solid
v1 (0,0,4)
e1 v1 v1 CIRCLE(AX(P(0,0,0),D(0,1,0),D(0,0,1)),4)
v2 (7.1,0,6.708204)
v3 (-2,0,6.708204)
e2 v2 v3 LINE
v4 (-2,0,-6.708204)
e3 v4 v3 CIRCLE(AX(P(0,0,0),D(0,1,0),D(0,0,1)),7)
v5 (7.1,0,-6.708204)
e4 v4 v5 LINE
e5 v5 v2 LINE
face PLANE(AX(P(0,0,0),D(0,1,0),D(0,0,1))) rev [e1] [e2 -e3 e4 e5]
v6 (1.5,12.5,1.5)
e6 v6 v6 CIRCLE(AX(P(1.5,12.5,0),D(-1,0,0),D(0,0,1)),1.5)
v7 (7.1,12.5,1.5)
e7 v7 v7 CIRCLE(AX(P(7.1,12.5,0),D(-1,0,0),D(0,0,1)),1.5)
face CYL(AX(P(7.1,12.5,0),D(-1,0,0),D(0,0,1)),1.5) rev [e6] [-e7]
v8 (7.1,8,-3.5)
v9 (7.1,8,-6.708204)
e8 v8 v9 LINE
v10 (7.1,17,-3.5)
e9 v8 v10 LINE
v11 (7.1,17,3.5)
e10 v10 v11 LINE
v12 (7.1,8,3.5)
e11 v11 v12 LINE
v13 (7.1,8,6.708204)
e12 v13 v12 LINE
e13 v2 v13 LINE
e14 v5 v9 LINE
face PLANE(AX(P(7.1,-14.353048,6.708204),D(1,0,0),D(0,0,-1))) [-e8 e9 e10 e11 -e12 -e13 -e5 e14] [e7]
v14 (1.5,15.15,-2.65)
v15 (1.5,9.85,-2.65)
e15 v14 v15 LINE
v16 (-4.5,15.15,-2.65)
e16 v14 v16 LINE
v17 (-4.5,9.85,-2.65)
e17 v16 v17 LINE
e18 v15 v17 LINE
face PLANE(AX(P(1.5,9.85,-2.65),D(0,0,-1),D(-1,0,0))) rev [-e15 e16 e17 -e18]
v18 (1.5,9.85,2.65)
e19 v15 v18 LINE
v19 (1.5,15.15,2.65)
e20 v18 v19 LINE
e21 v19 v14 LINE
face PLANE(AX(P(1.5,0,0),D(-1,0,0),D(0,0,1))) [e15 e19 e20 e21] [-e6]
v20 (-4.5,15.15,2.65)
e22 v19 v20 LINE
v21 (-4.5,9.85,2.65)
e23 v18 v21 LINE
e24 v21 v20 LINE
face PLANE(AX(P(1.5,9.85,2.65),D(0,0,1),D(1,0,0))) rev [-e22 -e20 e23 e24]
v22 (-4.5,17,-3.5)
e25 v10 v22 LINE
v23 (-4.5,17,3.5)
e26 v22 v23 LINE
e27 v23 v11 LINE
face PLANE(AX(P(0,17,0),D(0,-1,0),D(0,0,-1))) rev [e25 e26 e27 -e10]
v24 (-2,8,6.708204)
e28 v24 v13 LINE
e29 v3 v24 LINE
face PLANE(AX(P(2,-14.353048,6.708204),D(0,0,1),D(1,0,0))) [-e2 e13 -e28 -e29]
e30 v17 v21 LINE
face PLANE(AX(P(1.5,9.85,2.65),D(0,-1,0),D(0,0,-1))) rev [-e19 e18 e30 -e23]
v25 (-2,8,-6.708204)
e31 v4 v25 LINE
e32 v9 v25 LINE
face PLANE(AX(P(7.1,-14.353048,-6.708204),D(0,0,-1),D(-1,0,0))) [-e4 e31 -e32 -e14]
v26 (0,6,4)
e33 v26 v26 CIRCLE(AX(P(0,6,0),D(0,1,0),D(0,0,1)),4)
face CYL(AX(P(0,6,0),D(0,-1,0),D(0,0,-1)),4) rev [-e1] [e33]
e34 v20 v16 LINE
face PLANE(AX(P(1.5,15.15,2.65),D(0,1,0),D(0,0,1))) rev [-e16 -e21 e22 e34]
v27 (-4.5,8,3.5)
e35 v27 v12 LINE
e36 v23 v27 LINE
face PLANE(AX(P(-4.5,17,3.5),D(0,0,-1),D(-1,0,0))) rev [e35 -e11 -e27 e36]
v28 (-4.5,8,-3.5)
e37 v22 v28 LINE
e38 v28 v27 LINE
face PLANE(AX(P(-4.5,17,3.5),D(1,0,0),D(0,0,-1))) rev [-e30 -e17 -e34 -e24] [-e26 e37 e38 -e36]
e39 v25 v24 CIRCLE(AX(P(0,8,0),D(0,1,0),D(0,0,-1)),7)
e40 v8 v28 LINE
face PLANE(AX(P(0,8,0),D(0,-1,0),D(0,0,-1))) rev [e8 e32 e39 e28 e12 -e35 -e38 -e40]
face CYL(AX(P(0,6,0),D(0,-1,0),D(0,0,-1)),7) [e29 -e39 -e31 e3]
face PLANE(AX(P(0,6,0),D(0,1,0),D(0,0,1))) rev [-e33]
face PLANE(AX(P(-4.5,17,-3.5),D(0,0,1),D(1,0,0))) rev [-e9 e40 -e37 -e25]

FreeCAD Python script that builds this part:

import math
import FreeCAD as App
import Part
import Sketcher
Q = App.Units.Quantity

doc = App.newDocument("Part")
params = doc.addObject("Spreadsheet::Sheet", "Params")
for row, (alias, value) in enumerate([
    ("sketch1_diameter", "14 mm"),
    ("sketch1_diameter2", "8 mm"),
    ("pad1_length", "6 mm"),
    ("sketch2_diameter", "14 mm"),
    ("pad2_length", "10 mm"),
    ("sketch3_radius", "7 mm"),
    ("pocket1_length", "8 mm"),
    ("sketch4_width", "6.3 mm"),
    ("sketch4_height", "4.3 mm"),
    ("pocket2_length", "6 mm"),
    ("sketch5_radius", "7 mm"),
    ("sketch5_height", "8 mm"),
    ("pocket3_length", "8 mm"),
    ("sketch6_radius", "7 mm"),
    ("sketch6_width", "4 mm"),
    ("sketch6_height", "5 mm"),
    ("pad3_length", "8 mm"),
    ("sketch7_diameter", "14 mm"),
    ("pocket4_length", "8 mm"),
    ("sketch8_width", "9 mm"),
    ("sketch8_height", "7 mm"),
    ("pad4_length", "9 mm"),
    ("sketch9_width", "5.3 mm"),
    ("pocket5_length", "6 mm"),
    ("sketch10_radius", "7 mm"),
    ("sketch10_width", "5.1 mm"),
    ("pad5_length", "8 mm"),
    ("sketch11_width", "9 mm"),
    ("sketch11_height", "7 mm"),
    ("pad6_length", "2.6 mm"),
    ("sketch12_width", "4 mm"),
    ("sketch12_height", "5 mm"),
    ("sketch13_diameter", "3 mm"),
], start=1):
    params.set(f"A{row}", alias)
    params.set(f"B{row}", "=" + value)
    params.setAlias(f"B{row}", alias)

body = doc.addObject("PartDesign::Body", "Body")

# Sketch on XZ plane
sketch1 = body.newObject("Sketcher::SketchObject", "Sketch")
sketch1.AttachmentSupport = (doc.getObject("XZ_Plane"), [""])
sketch1.MapMode = "FlatFace"
sketch1.addGeometry(Part.Circle(App.Vector(0, 0, 0), App.Vector(0, 0, 1), 7), False)
sketch1.addGeometry(Part.Circle(App.Vector(0, 0, 0), App.Vector(0, 0, 1), 4), False)
sketch1.addConstraint(Sketcher.Constraint("Coincident", 0, 3, -1, 1))
sketch1.addConstraint(Sketcher.Constraint("Coincident", 1, 3, -1, 1))
sketch1.addConstraint(Sketcher.Constraint("Diameter", 0, Q("14 mm")))
sketch1.addConstraint(Sketcher.Constraint("Diameter", 1, Q("8 mm")))
sketch1.setExpression("Constraints[2]", "Params.sketch1_diameter")
sketch1.setExpression("Constraints[3]", "Params.sketch1_diameter2")
pad1 = body.newObject("PartDesign::Pad", "Pad")
pad1.Profile = sketch1
pad1.setExpression("Length", "Params.pad1_length")
pad1.Reversed = True

# Sketch on XZ plane
sketch2 = body.newObject("Sketcher::SketchObject", "Sketch001")
sketch2.AttachmentSupport = (doc.getObject("XZ_Plane"), [""])
sketch2.MapMode = "FlatFace"
sketch2.AttachmentOffset = App.Placement(App.Vector(0, 0, -6), App.Rotation())
sketch2.addGeometry(Part.Circle(App.Vector(0, 0, 0), App.Vector(0, 0, 1), 7), False)
sketch2.addConstraint(Sketcher.Constraint("Coincident", 0, 3, -1, 1))
sketch2.addConstraint(Sketcher.Constraint("Diameter", 0, Q("14 mm")))
sketch2.setExpression("Constraints[1]", "Params.sketch2_diameter")
pad2 = body.newObject("PartDesign::Pad", "Pad001")
pad2.Profile = sketch2
pad2.setExpression("Length", "Params.pad2_length")
pad2.Reversed = True

# Sketch on XZ plane
sketch3 = body.newObject("Sketcher::SketchObject", "Sketch002")
sketch3.AttachmentSupport = (doc.getObject("XZ_Plane"), [""])
sketch3.MapMode = "FlatFace"
sketch3.AttachmentOffset = App.Placement(App.Vector(0, 0, -16), App.Rotation())
sketch3.addGeometry(Part.LineSegment(App.Vector(0, 7, 0), App.Vector(0, -7, 0)), False)
sketch3.addGeometry(Part.ArcOfCircle(Part.Circle(App.Vector(0, 0, 0), App.Vector(0, 0, 1), 7), math.radians(90), math.radians(270)), False)
sketch3.addConstraint(Sketcher.Constraint("Coincident", 0, 1, 1, 1))
sketch3.addConstraint(Sketcher.Constraint("Coincident", 1, 2, 0, 2))
sketch3.addConstraint(Sketcher.Constraint("Vertical", 0))
sketch3.addConstraint(Sketcher.Constraint("Coincident", 1, 3, -1, 1))
sketch3.addConstraint(Sketcher.Constraint("PointOnObject", 0, 1, -2))
sketch3.addConstraint(Sketcher.Constraint("Radius", 1, Q("7 mm")))
sketch3.setExpression("Constraints[5]", "Params.sketch3_radius")
pocket1 = body.newObject("PartDesign::Pocket", "Pocket")
pocket1.Profile = sketch3
pocket1.setExpression("Length", "Params.pocket1_length")
pocket1.Reversed = True

# Sketch on YZ plane
sketch4 = body.newObject("Sketcher::SketchObject", "Sketch003")
sketch4.AttachmentSupport = (doc.getObject("YZ_Plane"), [""])
sketch4.MapMode = "FlatFace"
sketch4.addGeometry(Part.LineSegment(App.Vector(15.3, -2.15, 0), App.Vector(9, -2.15, 0)), False)
sketch4.addGeometry(Part.LineSegment(App.Vector(9, -2.15, 0), App.Vector(9, 2.15, 0)), False)
sketch4.addGeometry(Part.LineSegment(App.Vector(9, 2.15, 0), App.Vector(15.3, 2.15, 0)), False)
sketch4.addGeometry(Part.LineSegment(App.Vector(15.3, 2.15, 0), App.Vector(15.3, -2.15, 0)), False)
sketch4.addConstraint(Sketcher.Constraint("Coincident", 0, 2, 1, 1))
sketch4.addConstraint(Sketcher.Constraint("Coincident", 1, 2, 2, 1))
sketch4.addConstraint(Sketcher.Constraint("Coincident", 2, 2, 3, 1))
sketch4.addConstraint(Sketcher.Constraint("Coincident", 3, 2, 0, 1))
sketch4.addConstraint(Sketcher.Constraint("Horizontal", 0))
sketch4.addConstraint(Sketcher.Constraint("Vertical", 1))
sketch4.addConstraint(Sketcher.Constraint("Horizontal", 2))
sketch4.addConstraint(Sketcher.Constraint("Vertical", 3))
sketch4.addConstraint(Sketcher.Constraint("DistanceX", 0, 2, 0, 1, Q("6.3 mm")))
sketch4.addConstraint(Sketcher.Constraint("DistanceY", 1, 1, 1, 2, Q("4.3 mm")))
sketch4.addConstraint(Sketcher.Constraint("DistanceX", -1, 1, 0, 2, Q("9 mm")))
sketch4.addConstraint(Sketcher.Constraint("DistanceY", 0, 2, -1, 1, Q("2.15 mm")))
sketch4.setExpression("Constraints[8]", "Params.sketch4_width")
sketch4.setExpression("Constraints[9]", "Params.sketch4_height")
pocket2 = body.newObject("PartDesign::Pocket", "Pocket001")
pocket2.Profile = sketch4
pocket2.setExpression("Length", "Params.pocket2_length")
pocket2.Reversed = True

# Sketch on XZ plane
sketch5 = body.newObject("Sketcher::SketchObject", "Sketch004")
sketch5.AttachmentSupport = (doc.getObject("XZ_Plane"), [""])
sketch5.MapMode = "FlatFace"
sketch5.AttachmentOffset = App.Placement(App.Vector(0, 0, -16), App.Rotation())
sketch5.addGeometry(Part.LineSegment(App.Vector(-10.546, -10.546, 0), App.Vector(-10.546, 10.546, 0)), False)
sketch5.addGeometry(Part.LineSegment(App.Vector(-10.546, 10.546, 0), App.Vector(10.546, 10.546, 0)), False)
sketch5.addGeometry(Part.LineSegment(App.Vector(10.546, 10.546, 0), App.Vector(10.546, -10.546, 0)), False)
sketch5.addGeometry(Part.LineSegment(App.Vector(10.546, -10.546, 0), App.Vector(-10.546, -10.546, 0)), False)
sketch5.addGeometry(Part.LineSegment(App.Vector(0, 4, 0), App.Vector(0, -4, 0)), False)
sketch5.addGeometry(Part.LineSegment(App.Vector(0, -4, 0), App.Vector(5.744563, -4, 0)), False)
sketch5.addGeometry(Part.ArcOfCircle(Part.Circle(App.Vector(0, 0, 0), App.Vector(0, 0, 1), 7), math.radians(-34.849905), math.radians(34.849905)), False)
sketch5.addGeometry(Part.LineSegment(App.Vector(5.744563, 4, 0), App.Vector(0, 4, 0)), False)
sketch5.addConstraint(Sketcher.Constraint("Coincident", 0, 2, 1, 1))
sketch5.addConstraint(Sketcher.Constraint("Coincident", 1, 2, 2, 1))
sketch5.addConstraint(Sketcher.Constraint("Coincident", 2, 2, 3, 1))
sketch5.addConstraint(Sketcher.Constraint("Coincident", 3, 2, 0, 1))
sketch5.addConstraint(Sketcher.Constraint("Coincident", 4, 2, 5, 1))
sketch5.addConstraint(Sketcher.Constraint("Coincident", 5, 2, 6, 1))
sketch5.addConstraint(Sketcher.Constraint("Coincident", 6, 2, 7, 1))
sketch5.addConstraint(Sketcher.Constraint("Coincident", 7, 2, 4, 1))
sketch5.addConstraint(Sketcher.Constraint("Vertical", 0))
sketch5.addConstraint(Sketcher.Constraint("Horizontal", 1))
sketch5.addConstraint(Sketcher.Constraint("Vertical", 2))
sketch5.addConstraint(Sketcher.Constraint("Horizontal", 3))
sketch5.addConstraint(Sketcher.Constraint("Vertical", 4))
sketch5.addConstraint(Sketcher.Constraint("Horizontal", 5))
sketch5.addConstraint(Sketcher.Constraint("Horizontal", 7))
sketch5.addConstraint(Sketcher.Constraint("Coincident", 6, 3, -1, 1))
sketch5.addConstraint(Sketcher.Constraint("Symmetric", 0, 2, 2, 2, -1, 1))
sketch5.addConstraint(Sketcher.Constraint("Symmetric", 4, 2, 7, 2, -1, 1))
sketch5.addConstraint(Sketcher.Constraint("Equal", 3, 0))
sketch5.addConstraint(Sketcher.Constraint("Radius", 6, Q("7 mm")))
sketch5.addConstraint(Sketcher.Constraint("DistanceY", 4, 2, 4, 1, Q("8 mm")))
sketch5.addConstraint(Sketcher.Constraint("DistanceX", 1, 1, 1, 2, Q("21.092 mm")))
sketch5.setExpression("Constraints[19]", "Params.sketch5_radius")
sketch5.setExpression("Constraints[20]", "Params.sketch5_height")
pocket3 = body.newObject("PartDesign::Pocket", "Pocket002")
pocket3.Profile = sketch5
pocket3.setExpression("Length", "Params.pocket3_length")
pocket3.Reversed = True

# Sketch on XZ plane
sketch6 = body.newObject("Sketcher::SketchObject", "Sketch005")
sketch6.AttachmentSupport = (doc.getObject("XZ_Plane"), [""])
sketch6.MapMode = "FlatFace"
sketch6.AttachmentOffset = App.Placement(App.Vector(0, 0, -8), App.Rotation())
sketch6.addGeometry(Part.LineSegment(App.Vector(2, -6.708204, 0), App.Vector(2, -11.708204, 0)), False)
sketch6.addGeometry(Part.LineSegment(App.Vector(2, -11.708204, 0), App.Vector(-2, -11.708204, 0)), False)
sketch6.addGeometry(Part.LineSegment(App.Vector(-2, -11.708204, 0), App.Vector(-2, -6.708204, 0)), False)
sketch6.addGeometry(Part.ArcOfCircle(Part.Circle(App.Vector(0, 0, 0), App.Vector(0, 0, 1), 7), math.radians(-106.60155), math.radians(-73.39845)), False)
sketch6.addGeometry(Part.LineSegment(App.Vector(2, 11.708204, 0), App.Vector(2, 6.708204, 0)), False)
sketch6.addGeometry(Part.ArcOfCircle(Part.Circle(App.Vector(0, 0, 0), App.Vector(0, 0, 1), 7), math.radians(73.39845), math.radians(106.60155)), False)
sketch6.addGeometry(Part.LineSegment(App.Vector(-2, 6.708204, 0), App.Vector(-2, 11.708204, 0)), False)
sketch6.addGeometry(Part.LineSegment(App.Vector(-2, 11.708204, 0), App.Vector(2, 11.708204, 0)), False)
sketch6.addConstraint(Sketcher.Constraint("Coincident", 0, 2, 1, 1))
sketch6.addConstraint(Sketcher.Constraint("Coincident", 1, 2, 2, 1))
sketch6.addConstraint(Sketcher.Constraint("Coincident", 2, 2, 3, 1))
sketch6.addConstraint(Sketcher.Constraint("Coincident", 3, 2, 0, 1))
sketch6.addConstraint(Sketcher.Constraint("Coincident", 4, 2, 5, 1))
sketch6.addConstraint(Sketcher.Constraint("Coincident", 5, 2, 6, 1))
sketch6.addConstraint(Sketcher.Constraint("Coincident", 6, 2, 7, 1))
sketch6.addConstraint(Sketcher.Constraint("Coincident", 7, 2, 4, 1))
sketch6.addConstraint(Sketcher.Constraint("Vertical", 0))
sketch6.addConstraint(Sketcher.Constraint("Horizontal", 1))
sketch6.addConstraint(Sketcher.Constraint("Vertical", 2))
sketch6.addConstraint(Sketcher.Constraint("Vertical", 4))
sketch6.addConstraint(Sketcher.Constraint("Vertical", 6))
sketch6.addConstraint(Sketcher.Constraint("Horizontal", 7))
sketch6.addConstraint(Sketcher.Constraint("Coincident", 3, 3, -1, 1))
sketch6.addConstraint(Sketcher.Constraint("Coincident", 5, 3, -1, 1))
sketch6.addConstraint(Sketcher.Constraint("Equal", 3, 5))
sketch6.addConstraint(Sketcher.Constraint("Symmetric", 0, 2, 6, 2, -1, 1))
sketch6.addConstraint(Sketcher.Constraint("Horizontal", 2, 2, 3, 2))
sketch6.addConstraint(Sketcher.Constraint("Horizontal", 4, 2, 5, 2))
sketch6.addConstraint(Sketcher.Constraint("Radius", 3, Q("7 mm")))
sketch6.addConstraint(Sketcher.Constraint("DistanceX", 1, 2, 1, 1, Q("4 mm")))
sketch6.addConstraint(Sketcher.Constraint("DistanceY", 0, 2, 0, 1, Q("5 mm")))
sketch6.setExpression("Constraints[20]", "Params.sketch6_radius")
sketch6.setExpression("Constraints[21]", "Params.sketch6_width")
sketch6.setExpression("Constraints[22]", "Params.sketch6_height")
pad3 = body.newObject("PartDesign::Pad", "Pad002")
pad3.Profile = sketch6
pad3.setExpression("Length", "Params.pad3_length")

# Sketch on XZ plane
sketch7 = body.newObject("Sketcher::SketchObject", "Sketch006")
sketch7.AttachmentSupport = (doc.getObject("XZ_Plane"), [""])
sketch7.MapMode = "FlatFace"
sketch7.AttachmentOffset = App.Placement(App.Vector(0, 0, -16), App.Rotation())
sketch7.addGeometry(Part.Circle(App.Vector(0, 0, 0), App.Vector(0, 0, 1), 7), False)
sketch7.addConstraint(Sketcher.Constraint("Coincident", 0, 3, -1, 1))
sketch7.addConstraint(Sketcher.Constraint("Diameter", 0, Q("14 mm")))
sketch7.setExpression("Constraints[1]", "Params.sketch7_diameter")
pocket4 = body.newObject("PartDesign::Pocket", "Pocket003")
pocket4.Profile = sketch7
pocket4.setExpression("Length", "Params.pocket4_length")
pocket4.Reversed = True

# Sketch on XZ plane
sketch8 = body.newObject("Sketcher::SketchObject", "Sketch007")
sketch8.AttachmentSupport = (doc.getObject("XZ_Plane"), [""])
sketch8.MapMode = "FlatFace"
sketch8.AttachmentOffset = App.Placement(App.Vector(0, 0, -8), App.Rotation())
sketch8.addGeometry(Part.LineSegment(App.Vector(-4.5, -3.5, 0), App.Vector(-4.5, 3.5, 0)), False)
sketch8.addGeometry(Part.LineSegment(App.Vector(-4.5, 3.5, 0), App.Vector(4.5, 3.5, 0)), False)
sketch8.addGeometry(Part.LineSegment(App.Vector(4.5, 3.5, 0), App.Vector(4.5, -3.5, 0)), False)
sketch8.addGeometry(Part.LineSegment(App.Vector(4.5, -3.5, 0), App.Vector(-4.5, -3.5, 0)), False)
sketch8.addConstraint(Sketcher.Constraint("Coincident", 0, 2, 1, 1))
sketch8.addConstraint(Sketcher.Constraint("Coincident", 1, 2, 2, 1))
sketch8.addConstraint(Sketcher.Constraint("Coincident", 2, 2, 3, 1))
sketch8.addConstraint(Sketcher.Constraint("Coincident", 3, 2, 0, 1))
sketch8.addConstraint(Sketcher.Constraint("Vertical", 0))
sketch8.addConstraint(Sketcher.Constraint("Horizontal", 1))
sketch8.addConstraint(Sketcher.Constraint("Vertical", 2))
sketch8.addConstraint(Sketcher.Constraint("Horizontal", 3))
sketch8.addConstraint(Sketcher.Constraint("Symmetric", 0, 2, 2, 2, -1, 1))
sketch8.addConstraint(Sketcher.Constraint("DistanceX", 1, 1, 1, 2, Q("9 mm")))
sketch8.addConstraint(Sketcher.Constraint("DistanceY", 0, 1, 0, 2, Q("7 mm")))
sketch8.setExpression("Constraints[9]", "Params.sketch8_width")
sketch8.setExpression("Constraints[10]", "Params.sketch8_height")
pad4 = body.newObject("PartDesign::Pad", "Pad003")
pad4.Profile = sketch8
pad4.setExpression("Length", "Params.pad4_length")
pad4.Reversed = True

# Sketch on YZ plane
sketch9 = body.newObject("Sketcher::SketchObject", "Sketch008")
sketch9.AttachmentSupport = (doc.getObject("YZ_Plane"), [""])
sketch9.MapMode = "FlatFace"
sketch9.AttachmentOffset = App.Placement(App.Vector(0, 0, -4.5), App.Rotation())
sketch9.addGeometry(Part.LineSegment(App.Vector(15.15, -2.65, 0), App.Vector(9.85, -2.65, 0)), False)
sketch9.addGeometry(Part.LineSegment(App.Vector(9.85, -2.65, 0), App.Vector(9.85, 2.65, 0)), False)
sketch9.addGeometry(Part.LineSegment(App.Vector(9.85, 2.65, 0), App.Vector(15.15, 2.65, 0)), False)
sketch9.addGeometry(Part.LineSegment(App.Vector(15.15, 2.65, 0), App.Vector(15.15, -2.65, 0)), False)
sketch9.addConstraint(Sketcher.Constraint("Coincident", 0, 2, 1, 1))
sketch9.addConstraint(Sketcher.Constraint("Coincident", 1, 2, 2, 1))
sketch9.addConstraint(Sketcher.Constraint("Coincident", 2, 2, 3, 1))
sketch9.addConstraint(Sketcher.Constraint("Coincident", 3, 2, 0, 1))
sketch9.addConstraint(Sketcher.Constraint("Horizontal", 0))
sketch9.addConstraint(Sketcher.Constraint("Vertical", 1))
sketch9.addConstraint(Sketcher.Constraint("Horizontal", 2))
sketch9.addConstraint(Sketcher.Constraint("Vertical", 3))
sketch9.addConstraint(Sketcher.Constraint("Equal", 2, 1))
sketch9.addConstraint(Sketcher.Constraint("DistanceX", 0, 2, 0, 1, Q("5.3 mm")))
sketch9.addConstraint(Sketcher.Constraint("DistanceX", -1, 1, 0, 2, Q("9.85 mm")))
sketch9.addConstraint(Sketcher.Constraint("DistanceY", 0, 2, -1, 1, Q("2.65 mm")))
sketch9.setExpression("Constraints[9]", "Params.sketch9_width")
pocket5 = body.newObject("PartDesign::Pocket", "Pocket004")
pocket5.Profile = sketch9
pocket5.setExpression("Length", "Params.pocket5_length")
pocket5.Reversed = True

# Sketch on XZ plane
sketch10 = body.newObject("Sketcher::SketchObject", "Sketch009")
sketch10.AttachmentSupport = (doc.getObject("XZ_Plane"), [""])
sketch10.MapMode = "FlatFace"
sketch10.AttachmentOffset = App.Placement(App.Vector(0, 0, -8), App.Rotation())
sketch10.addGeometry(Part.LineSegment(App.Vector(2, 6.708204, 0), App.Vector(7.1, 6.708204, 0)), False)
sketch10.addGeometry(Part.LineSegment(App.Vector(7.1, 6.708204, 0), App.Vector(7.1, -6.708204, 0)), False)
sketch10.addGeometry(Part.LineSegment(App.Vector(7.1, -6.708204, 0), App.Vector(2, -6.708204, 0)), False)
sketch10.addGeometry(Part.ArcOfCircle(Part.Circle(App.Vector(0, 0, 0), App.Vector(0, 0, 1), 7), math.radians(-73.39845), math.radians(73.39845)), False)
sketch10.addConstraint(Sketcher.Constraint("Coincident", 0, 2, 1, 1))
sketch10.addConstraint(Sketcher.Constraint("Coincident", 1, 2, 2, 1))
sketch10.addConstraint(Sketcher.Constraint("Coincident", 2, 2, 3, 1))
sketch10.addConstraint(Sketcher.Constraint("Coincident", 3, 2, 0, 1))
sketch10.addConstraint(Sketcher.Constraint("Horizontal", 0))
sketch10.addConstraint(Sketcher.Constraint("Vertical", 1))
sketch10.addConstraint(Sketcher.Constraint("Horizontal", 2))
sketch10.addConstraint(Sketcher.Constraint("Coincident", 3, 3, -1, 1))
sketch10.addConstraint(Sketcher.Constraint("Vertical", 2, 2, 3, 2))
sketch10.addConstraint(Sketcher.Constraint("Radius", 3, Q("7 mm")))
sketch10.addConstraint(Sketcher.Constraint("DistanceX", 0, 1, 0, 2, Q("5.1 mm")))
sketch10.addConstraint(Sketcher.Constraint("DistanceX", -1, 1, 2, 2, Q("2 mm")))
sketch10.setExpression("Constraints[9]", "Params.sketch10_radius")
sketch10.setExpression("Constraints[10]", "Params.sketch10_width")
pad5 = body.newObject("PartDesign::Pad", "Pad004")
pad5.Profile = sketch10
pad5.setExpression("Length", "Params.pad5_length")

# Sketch on YZ plane
sketch11 = body.newObject("Sketcher::SketchObject", "Sketch010")
sketch11.AttachmentSupport = (doc.getObject("YZ_Plane"), [""])
sketch11.MapMode = "FlatFace"
sketch11.AttachmentOffset = App.Placement(App.Vector(0, 0, 4.5), App.Rotation())
sketch11.addGeometry(Part.LineSegment(App.Vector(17, 3.5, 0), App.Vector(8, 3.5, 0)), False)
sketch11.addGeometry(Part.LineSegment(App.Vector(8, 3.5, 0), App.Vector(8, -3.5, 0)), False)
sketch11.addGeometry(Part.LineSegment(App.Vector(8, -3.5, 0), App.Vector(17, -3.5, 0)), False)
sketch11.addGeometry(Part.LineSegment(App.Vector(17, -3.5, 0), App.Vector(17, 3.5, 0)), False)
sketch11.addConstraint(Sketcher.Constraint("Coincident", 0, 2, 1, 1))
sketch11.addConstraint(Sketcher.Constraint("Coincident", 1, 2, 2, 1))
sketch11.addConstraint(Sketcher.Constraint("Coincident", 2, 2, 3, 1))
sketch11.addConstraint(Sketcher.Constraint("Coincident", 3, 2, 0, 1))
sketch11.addConstraint(Sketcher.Constraint("Horizontal", 0))
sketch11.addConstraint(Sketcher.Constraint("Vertical", 1))
sketch11.addConstraint(Sketcher.Constraint("Horizontal", 2))
sketch11.addConstraint(Sketcher.Constraint("Vertical", 3))
sketch11.addConstraint(Sketcher.Constraint("DistanceX", 0, 2, 0, 1, Q("9 mm")))
sketch11.addConstraint(Sketcher.Constraint("DistanceY", 1, 2, 1, 1, Q("7 mm")))
sketch11.addConstraint(Sketcher.Constraint("DistanceX", -1, 1, 0, 2, Q("8 mm")))
sketch11.addConstraint(Sketcher.Constraint("DistanceY", -1, 1, 0, 2, Q("3.5 mm")))
sketch11.setExpression("Constraints[8]", "Params.sketch11_width")
sketch11.setExpression("Constraints[9]", "Params.sketch11_height")
pad6 = body.newObject("PartDesign::Pad", "Pad005")
pad6.Profile = sketch11
pad6.setExpression("Length", "Params.pad6_length")

# Sketch on XZ plane
sketch12 = body.newObject("Sketcher::SketchObject", "Sketch011")
sketch12.AttachmentSupport = (doc.getObject("XZ_Plane"), [""])
sketch12.MapMode = "FlatFace"
sketch12.AttachmentOffset = App.Placement(App.Vector(0, 0, -8), App.Rotation())
sketch12.addGeometry(Part.LineSegment(App.Vector(-2, -11.708204, 0), App.Vector(-2, -6.708204, 0)), False)
sketch12.addGeometry(Part.LineSegment(App.Vector(-2, -6.708204, 0), App.Vector(2, -6.708204, 0)), False)
sketch12.addGeometry(Part.LineSegment(App.Vector(2, -6.708204, 0), App.Vector(2, -11.708204, 0)), False)
sketch12.addGeometry(Part.LineSegment(App.Vector(2, -11.708204, 0), App.Vector(-2, -11.708204, 0)), False)
sketch12.addGeometry(Part.LineSegment(App.Vector(-2, 6.708204, 0), App.Vector(-2, 11.708204, 0)), False)
sketch12.addGeometry(Part.LineSegment(App.Vector(-2, 11.708204, 0), App.Vector(2, 11.708204, 0)), False)
sketch12.addGeometry(Part.LineSegment(App.Vector(2, 11.708204, 0), App.Vector(2, 6.708204, 0)), False)
sketch12.addGeometry(Part.LineSegment(App.Vector(2, 6.708204, 0), App.Vector(-2, 6.708204, 0)), False)
sketch12.addConstraint(Sketcher.Constraint("Coincident", 0, 2, 1, 1))
sketch12.addConstraint(Sketcher.Constraint("Coincident", 1, 2, 2, 1))
sketch12.addConstraint(Sketcher.Constraint("Coincident", 2, 2, 3, 1))
sketch12.addConstraint(Sketcher.Constraint("Coincident", 3, 2, 0, 1))
sketch12.addConstraint(Sketcher.Constraint("Coincident", 4, 2, 5, 1))
sketch12.addConstraint(Sketcher.Constraint("Coincident", 5, 2, 6, 1))
sketch12.addConstraint(Sketcher.Constraint("Coincident", 6, 2, 7, 1))
sketch12.addConstraint(Sketcher.Constraint("Coincident", 7, 2, 4, 1))
sketch12.addConstraint(Sketcher.Constraint("Vertical", 0))
sketch12.addConstraint(Sketcher.Constraint("Horizontal", 1))
sketch12.addConstraint(Sketcher.Constraint("Vertical", 2))
sketch12.addConstraint(Sketcher.Constraint("Horizontal", 3))
sketch12.addConstraint(Sketcher.Constraint("Vertical", 4))
sketch12.addConstraint(Sketcher.Constraint("Horizontal", 5))
sketch12.addConstraint(Sketcher.Constraint("Vertical", 6))
sketch12.addConstraint(Sketcher.Constraint("Horizontal", 7))
sketch12.addConstraint(Sketcher.Constraint("Symmetric", 2, 2, 4, 2, -1, 1))
sketch12.addConstraint(Sketcher.Constraint("Symmetric", 0, 2, 6, 2, -1, 1))
sketch12.addConstraint(Sketcher.Constraint("Vertical", 3, 2, 4, 2))
sketch12.addConstraint(Sketcher.Constraint("DistanceX", 1, 1, 1, 2, Q("4 mm")))
sketch12.addConstraint(Sketcher.Constraint("DistanceY", 0, 1, 0, 2, Q("5 mm")))
sketch12.addConstraint(Sketcher.Constraint("DistanceY", 0, 2, -1, 1, Q("6.708204 mm")))
sketch12.setExpression("Constraints[19]", "Params.sketch12_width")
sketch12.setExpression("Constraints[20]", "Params.sketch12_height")
pocket6 = body.newObject("PartDesign::Pocket", "Pocket005")
pocket6.Profile = sketch12
pocket6.Type = "ThroughAll"
pocket6.Reversed = True

# Sketch on YZ plane
sketch13 = body.newObject("Sketcher::SketchObject", "Sketch012")
sketch13.AttachmentSupport = (doc.getObject("YZ_Plane"), [""])
sketch13.MapMode = "FlatFace"
sketch13.AttachmentOffset = App.Placement(App.Vector(0, 0, 1.5), App.Rotation())
sketch13.addGeometry(Part.Circle(App.Vector(12.5, 0, 0), App.Vector(0, 0, 1), 1.5), False)
sketch13.addConstraint(Sketcher.Constraint("PointOnObject", 0, 3, -1))
sketch13.addConstraint(Sketcher.Constraint("Diameter", 0, Q("3 mm")))
sketch13.addConstraint(Sketcher.Constraint("DistanceX", -1, 1, 0, 3, Q("12.5 mm")))
sketch13.setExpression("Constraints[1]", "Params.sketch13_diameter")
pocket7 = body.newObject("PartDesign::Pocket", "Pocket006")
pocket7.Profile = sketch13
pocket7.Type = "ThroughAll"
pocket7.Reversed = True

doc.recompute()
